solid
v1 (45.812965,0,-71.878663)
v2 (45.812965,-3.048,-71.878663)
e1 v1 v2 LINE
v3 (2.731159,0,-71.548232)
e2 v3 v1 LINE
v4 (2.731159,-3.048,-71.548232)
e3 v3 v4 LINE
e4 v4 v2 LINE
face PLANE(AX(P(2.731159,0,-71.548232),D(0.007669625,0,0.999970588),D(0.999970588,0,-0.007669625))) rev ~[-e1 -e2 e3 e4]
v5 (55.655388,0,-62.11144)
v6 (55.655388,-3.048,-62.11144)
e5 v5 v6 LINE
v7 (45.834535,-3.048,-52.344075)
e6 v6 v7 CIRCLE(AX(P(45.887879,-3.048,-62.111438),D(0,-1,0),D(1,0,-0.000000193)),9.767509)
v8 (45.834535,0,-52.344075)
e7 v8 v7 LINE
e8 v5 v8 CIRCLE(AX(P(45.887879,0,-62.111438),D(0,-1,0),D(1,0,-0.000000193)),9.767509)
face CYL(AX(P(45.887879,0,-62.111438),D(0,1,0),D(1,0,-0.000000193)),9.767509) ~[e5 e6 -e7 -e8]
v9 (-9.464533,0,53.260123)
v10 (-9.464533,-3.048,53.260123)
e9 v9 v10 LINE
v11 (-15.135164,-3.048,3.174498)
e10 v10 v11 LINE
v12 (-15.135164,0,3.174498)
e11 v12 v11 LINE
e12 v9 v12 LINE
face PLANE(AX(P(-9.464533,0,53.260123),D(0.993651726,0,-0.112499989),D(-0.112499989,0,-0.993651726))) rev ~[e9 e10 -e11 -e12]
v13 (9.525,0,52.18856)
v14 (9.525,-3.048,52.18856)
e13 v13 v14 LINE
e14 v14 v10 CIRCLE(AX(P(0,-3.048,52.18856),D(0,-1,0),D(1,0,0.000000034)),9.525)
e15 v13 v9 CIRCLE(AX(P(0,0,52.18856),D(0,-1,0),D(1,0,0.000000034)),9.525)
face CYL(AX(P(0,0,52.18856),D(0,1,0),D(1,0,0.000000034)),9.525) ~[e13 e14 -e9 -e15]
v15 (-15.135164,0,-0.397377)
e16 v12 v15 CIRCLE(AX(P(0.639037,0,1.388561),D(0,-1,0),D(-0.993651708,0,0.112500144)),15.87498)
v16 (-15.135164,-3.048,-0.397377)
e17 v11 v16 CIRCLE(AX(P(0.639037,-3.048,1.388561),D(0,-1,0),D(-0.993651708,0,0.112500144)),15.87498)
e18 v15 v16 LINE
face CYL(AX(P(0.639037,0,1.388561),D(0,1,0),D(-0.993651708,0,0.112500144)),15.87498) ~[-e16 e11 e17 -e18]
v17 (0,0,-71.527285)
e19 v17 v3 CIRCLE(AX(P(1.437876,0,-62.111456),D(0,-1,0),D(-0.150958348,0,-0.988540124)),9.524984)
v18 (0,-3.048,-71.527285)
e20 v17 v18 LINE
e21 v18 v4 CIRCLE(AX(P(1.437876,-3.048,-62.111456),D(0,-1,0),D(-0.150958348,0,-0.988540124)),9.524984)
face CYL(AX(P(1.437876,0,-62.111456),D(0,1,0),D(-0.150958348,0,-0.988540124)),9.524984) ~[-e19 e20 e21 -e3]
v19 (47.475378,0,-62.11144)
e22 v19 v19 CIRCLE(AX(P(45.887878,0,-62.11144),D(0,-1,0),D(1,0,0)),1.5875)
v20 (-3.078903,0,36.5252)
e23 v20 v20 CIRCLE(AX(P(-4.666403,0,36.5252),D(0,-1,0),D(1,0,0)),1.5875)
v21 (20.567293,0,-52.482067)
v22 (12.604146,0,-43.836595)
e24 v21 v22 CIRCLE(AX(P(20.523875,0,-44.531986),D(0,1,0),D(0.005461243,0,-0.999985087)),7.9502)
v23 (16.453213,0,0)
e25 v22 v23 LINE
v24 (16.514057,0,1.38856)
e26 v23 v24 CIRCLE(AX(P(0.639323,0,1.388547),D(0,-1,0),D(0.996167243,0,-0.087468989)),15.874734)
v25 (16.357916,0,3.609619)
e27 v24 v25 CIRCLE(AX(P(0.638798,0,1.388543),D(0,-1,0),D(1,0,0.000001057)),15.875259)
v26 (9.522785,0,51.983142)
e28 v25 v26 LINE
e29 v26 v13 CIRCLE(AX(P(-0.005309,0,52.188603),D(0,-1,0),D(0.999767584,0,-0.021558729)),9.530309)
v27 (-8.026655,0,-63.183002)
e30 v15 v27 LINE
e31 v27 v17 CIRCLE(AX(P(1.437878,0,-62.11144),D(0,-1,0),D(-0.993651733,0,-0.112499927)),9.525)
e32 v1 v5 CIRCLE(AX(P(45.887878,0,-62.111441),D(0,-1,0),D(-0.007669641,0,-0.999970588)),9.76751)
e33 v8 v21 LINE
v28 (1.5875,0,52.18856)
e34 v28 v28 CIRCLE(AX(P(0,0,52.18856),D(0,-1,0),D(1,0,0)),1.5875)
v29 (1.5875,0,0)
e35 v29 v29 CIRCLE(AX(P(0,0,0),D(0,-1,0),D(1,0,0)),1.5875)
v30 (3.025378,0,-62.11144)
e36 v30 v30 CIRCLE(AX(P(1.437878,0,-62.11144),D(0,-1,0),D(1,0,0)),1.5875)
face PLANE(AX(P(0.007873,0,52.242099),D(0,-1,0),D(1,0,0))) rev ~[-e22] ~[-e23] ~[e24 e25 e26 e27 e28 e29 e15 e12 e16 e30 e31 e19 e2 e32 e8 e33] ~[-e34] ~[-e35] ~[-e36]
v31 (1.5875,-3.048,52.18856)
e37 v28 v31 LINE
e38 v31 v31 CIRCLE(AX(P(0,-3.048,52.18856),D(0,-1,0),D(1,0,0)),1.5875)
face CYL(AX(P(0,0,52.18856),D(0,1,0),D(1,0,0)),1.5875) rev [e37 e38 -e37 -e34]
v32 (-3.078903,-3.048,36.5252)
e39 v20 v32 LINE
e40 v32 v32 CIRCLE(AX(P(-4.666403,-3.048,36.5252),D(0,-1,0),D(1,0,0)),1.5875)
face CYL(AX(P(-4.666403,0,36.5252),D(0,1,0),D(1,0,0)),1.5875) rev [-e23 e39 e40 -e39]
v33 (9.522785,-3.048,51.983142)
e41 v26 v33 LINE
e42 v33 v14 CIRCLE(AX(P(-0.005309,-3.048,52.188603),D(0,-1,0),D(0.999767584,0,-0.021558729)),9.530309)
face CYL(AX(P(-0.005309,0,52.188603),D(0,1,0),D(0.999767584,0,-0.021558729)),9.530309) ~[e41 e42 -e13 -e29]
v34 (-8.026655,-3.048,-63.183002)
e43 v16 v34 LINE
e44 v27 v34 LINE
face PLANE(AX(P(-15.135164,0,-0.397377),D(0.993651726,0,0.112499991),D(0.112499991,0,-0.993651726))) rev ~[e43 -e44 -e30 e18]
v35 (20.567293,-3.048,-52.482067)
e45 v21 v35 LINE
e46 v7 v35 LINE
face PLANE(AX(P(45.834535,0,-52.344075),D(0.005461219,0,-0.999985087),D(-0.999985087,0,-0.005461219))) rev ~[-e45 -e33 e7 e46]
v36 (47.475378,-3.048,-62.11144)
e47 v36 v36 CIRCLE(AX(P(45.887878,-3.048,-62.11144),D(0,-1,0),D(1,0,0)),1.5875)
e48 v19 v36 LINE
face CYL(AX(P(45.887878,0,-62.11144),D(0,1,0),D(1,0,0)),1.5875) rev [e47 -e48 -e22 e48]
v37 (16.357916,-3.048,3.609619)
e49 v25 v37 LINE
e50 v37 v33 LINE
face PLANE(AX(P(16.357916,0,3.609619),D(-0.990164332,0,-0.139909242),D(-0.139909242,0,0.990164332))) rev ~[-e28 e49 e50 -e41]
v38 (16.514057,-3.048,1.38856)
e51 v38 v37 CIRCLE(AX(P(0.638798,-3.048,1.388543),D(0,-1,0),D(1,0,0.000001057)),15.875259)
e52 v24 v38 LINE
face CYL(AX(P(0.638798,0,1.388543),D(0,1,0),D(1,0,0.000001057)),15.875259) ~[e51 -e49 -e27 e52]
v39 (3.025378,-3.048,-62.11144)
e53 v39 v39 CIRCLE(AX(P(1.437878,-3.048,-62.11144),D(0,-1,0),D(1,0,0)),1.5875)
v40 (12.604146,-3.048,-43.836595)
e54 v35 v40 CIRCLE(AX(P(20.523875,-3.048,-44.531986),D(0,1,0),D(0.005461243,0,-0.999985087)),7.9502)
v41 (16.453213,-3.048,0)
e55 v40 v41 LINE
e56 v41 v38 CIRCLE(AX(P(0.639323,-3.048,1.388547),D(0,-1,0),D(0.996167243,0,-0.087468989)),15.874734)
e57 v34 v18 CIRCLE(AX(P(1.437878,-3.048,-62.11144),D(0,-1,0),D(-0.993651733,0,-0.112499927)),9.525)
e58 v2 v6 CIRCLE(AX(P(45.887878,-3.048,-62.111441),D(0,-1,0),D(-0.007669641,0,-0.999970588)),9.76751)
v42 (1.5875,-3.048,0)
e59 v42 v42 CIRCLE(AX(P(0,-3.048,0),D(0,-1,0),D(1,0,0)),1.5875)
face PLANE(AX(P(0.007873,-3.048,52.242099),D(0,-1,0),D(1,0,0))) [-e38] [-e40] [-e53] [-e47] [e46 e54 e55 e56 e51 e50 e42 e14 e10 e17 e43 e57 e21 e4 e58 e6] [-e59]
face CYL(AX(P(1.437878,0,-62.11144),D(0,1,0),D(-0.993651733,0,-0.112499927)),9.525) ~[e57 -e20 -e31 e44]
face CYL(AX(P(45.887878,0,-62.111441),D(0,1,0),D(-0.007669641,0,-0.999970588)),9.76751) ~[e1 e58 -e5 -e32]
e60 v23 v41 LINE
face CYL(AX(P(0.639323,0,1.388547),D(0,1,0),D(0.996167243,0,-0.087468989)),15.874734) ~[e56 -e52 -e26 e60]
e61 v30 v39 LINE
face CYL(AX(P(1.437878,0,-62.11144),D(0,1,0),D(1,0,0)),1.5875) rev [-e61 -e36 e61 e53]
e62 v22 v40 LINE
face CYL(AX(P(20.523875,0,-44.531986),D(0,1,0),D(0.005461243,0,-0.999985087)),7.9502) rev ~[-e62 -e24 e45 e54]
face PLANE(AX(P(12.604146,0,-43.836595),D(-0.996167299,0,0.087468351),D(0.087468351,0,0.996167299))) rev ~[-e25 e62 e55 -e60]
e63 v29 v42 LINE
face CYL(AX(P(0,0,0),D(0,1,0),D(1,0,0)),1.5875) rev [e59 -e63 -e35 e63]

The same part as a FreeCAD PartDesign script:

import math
import FreeCAD as App
import Part
import Sketcher
Q = App.Units.Quantity

doc = App.newDocument("Part")
body = doc.addObject("PartDesign::Body", "Body")

# Sketch on XZ plane
sketch1 = doc.addObject("Sketcher::SketchObject", "Sketch")
body.addObject(sketch1)
sketch1.AttachmentSupport = (doc.XZ_Plane, [""])
sketch1.MapMode = "FlatFace"
sketch1.addGeometry([
    Part.ArcOfCircle(Part.Circle(App.Vector(-0.005309, 52.188603, 0), App.Vector(0, 0, 1), 9.530309), math.radians(-1.23532), math.radians(-0.000261)),  # 0
    Part.ArcOfCircle(Part.Circle(App.Vector(0, 52.18856, 0), App.Vector(0, 0, 1), 9.525), math.radians(0.000002), math.radians(173.540545)),  # 1
    Part.LineSegment(App.Vector(-9.464533, 53.260123, 0), App.Vector(-15.135164, 3.174498, 0)),  # 2
    Part.ArcOfCircle(Part.Circle(App.Vector(0.639037, 1.388561, 0), App.Vector(0, 0, 1), 15.87498), math.radians(173.540542), math.radians(186.459458)),  # 3
    Part.LineSegment(App.Vector(-15.135164, -0.397377, 0), App.Vector(-8.026655, -63.183002, 0)),  # 4
    Part.ArcOfCircle(Part.Circle(App.Vector(1.437878, -62.11144, 0), App.Vector(0, 0, 1), 9.525), math.radians(-173.540554), math.radians(-98.682465)),  # 5
    Part.ArcOfCircle(Part.Circle(App.Vector(1.437876, -62.111456, 0), App.Vector(0, 0, 1), 9.524984), math.radians(-98.682468), math.radians(-82.19639)),  # 6
    Part.LineSegment(App.Vector(2.731159, -71.548232, 0), App.Vector(45.812965, -71.878663, 0)),  # 7
    Part.ArcOfCircle(Part.Circle(App.Vector(45.887878, -62.111441, 0), App.Vector(0, 0, 1), 9.76751), math.radians(-90.439442), math.radians(0.000003)),  # 8
    Part.ArcOfCircle(Part.Circle(App.Vector(45.887879, -62.111438, 0), App.Vector(0, 0, 1), 9.767509), math.radians(-0.000011), math.radians(90.312916)),  # 9
    Part.LineSegment(App.Vector(45.834535, -52.344075, 0), App.Vector(20.567293, -52.482067, 0)),  # 10
    Part.ArcOfCircle(Part.Circle(App.Vector(20.523875, -44.531986, 0), App.Vector(0, 0, 1), 7.9502), math.radians(174.982021), math.radians(270.312908)),  # 11
    Part.LineSegment(App.Vector(12.604146, -43.836595, 0), App.Vector(16.453213, 0, 0)),  # 12
    Part.ArcOfCircle(Part.Circle(App.Vector(0.639323, 1.388547, 0), App.Vector(0, 0, 1), 15.874734), math.radians(-5.018017), math.radians(0.000047)),  # 13
    Part.ArcOfCircle(Part.Circle(App.Vector(0.638798, 1.388543, 0), App.Vector(0, 0, 1), 15.875259), math.radians(0.000061), math.radians(8.042523)),  # 14
    Part.LineSegment(App.Vector(16.357916, 3.609619, 0), App.Vector(9.522785, 51.983142, 0)),  # 15
    Part.Circle(App.Vector(1.437878, -62.11144, 0), App.Vector(0, 0, 1), 1.5875),  # 16
    Part.Circle(App.Vector(45.887878, -62.11144, 0), App.Vector(0, 0, 1), 1.5875),  # 17
    Part.Circle(App.Vector(0, 0, 0), App.Vector(0, 0, 1), 1.5875),  # 18
    Part.Circle(App.Vector(-4.666403, 36.5252, 0), App.Vector(0, 0, 1), 1.5875),  # 19
    Part.Circle(App.Vector(0, 52.18856, 0), App.Vector(0, 0, 1), 1.5875),  # 20
], False)
sketch1.addConstraint([
    Sketcher.Constraint("Coincident", 0, 2, 1, 1),
    Sketcher.Constraint("Coincident", 1, 2, 2, 1),
    Sketcher.Constraint("Coincident", 2, 2, 3, 1),
    Sketcher.Constraint("Coincident", 3, 2, 4, 1),
    Sketcher.Constraint("Coincident", 4, 2, 5, 1),
    Sketcher.Constraint("Coincident", 5, 2, 6, 1),
    Sketcher.Constraint("Coincident", 6, 2, 7, 1),
    Sketcher.Constraint("Coincident", 7, 2, 8, 1),
    Sketcher.Constraint("Coincident", 8, 2, 9, 1),
    Sketcher.Constraint("Coincident", 9, 2, 10, 1),
    Sketcher.Constraint("Coincident", 10, 2, 11, 2),
    Sketcher.Constraint("Coincident", 11, 1, 12, 1),
    Sketcher.Constraint("Coincident", 12, 2, 13, 1),
    Sketcher.Constraint("Coincident", 13, 2, 14, 1),
    Sketcher.Constraint("Coincident", 14, 2, 15, 1),
    Sketcher.Constraint("Coincident", 15, 2, 0, 1),
    Sketcher.Constraint("Coincident", 18, 3, -1, 1),
    Sketcher.Constraint("Coincident", 9, 3, 8, 3),
    Sketcher.Constraint("Coincident", 16, 3, 5, 3),
    Sketcher.Constraint("Coincident", 17, 3, 8, 3),
    Sketcher.Constraint("Coincident", 20, 3, 1, 3),
    Sketcher.Constraint("PointOnObject", 1, 3, -2),
    Sketcher.Constraint("PointOnObject", 5, 2, -2),
    Sketcher.Constraint("PointOnObject", 12, 2, -1),
    Sketcher.Constraint("Diameter", 16, Q("0.125 in")),
    Sketcher.Constraint("Diameter", 17, Q("0.125 in")),
    Sketcher.Constraint("Diameter", 18, Q("0.125 in")),
    Sketcher.Constraint("Diameter", 19, Q("0.125 in")),
    Sketcher.Constraint("Diameter", 20, Q("0.125 in")),
    Sketcher.Constraint("Radius", 1, Q("0.375 in")),
    Sketcher.Constraint("Radius", 5, Q("0.375 in")),
    Sketcher.Constraint("Radius", 11, Q("0.313 in")),
    Sketcher.Constraint("DistanceY", 3, 3, 1, 3, Q("2 in")),
    Sketcher.Constraint("DistanceY", 5, 3, 3, 3, Q("2.5 in")),
    Sketcher.Constraint("DistanceY", 8, 3, 3, 3, Q("2.5 in")),
    Sketcher.Constraint("DistanceX", 5, 3, 8, 3, Q("1.75 in")),
    Sketcher.Constraint("DistanceX", 6, 3, 8, 3, Q("1.7500001 in")),
    Sketcher.Constraint("DistanceY", -1, 1, 19, 3, Q("1.438 in")),
    Sketcher.Constraint("Radius", 0, Q("9.530309 mm")),
    Sketcher.Constraint("Radius", 3, Q("15.87498 mm")),
    Sketcher.Constraint("Radius", 8, Q("9.76751 mm")),
    Sketcher.Constraint("Radius", 14, Q("15.875259 mm")),
    Sketcher.Constraint("DistanceY", 3, 2, 2, 2, Q("0.140625 in")),
    Sketcher.Constraint("Radius", 6, Q("9.524984 mm")),
    Sketcher.Constraint("Radius", 13, Q("15.874734 mm")),
    Sketcher.Constraint("DistanceX", 9, 2, 9, 3, Q("0.0021002 in")),
    Sketcher.Constraint("DistanceX", 6, 3, 11, 3, Q("19.085999 mm")),
    Sketcher.Constraint("DistanceX", 1, 3, 14, 3, Q("0.638798 mm")),
    Sketcher.Constraint("DistanceX", 19, 3, 14, 3, Q("5.305201 mm")),
    Sketcher.Constraint("DistanceX", 2, 2, 3, 3, Q("15.774201 mm")),
    Sketcher.Constraint("DistanceY", 2, 2, 19, 3, Q("33.350702 mm")),
    Sketcher.Constraint("DistanceY", 5, 2, 11, 3, Q("26.995299 mm")),
    Sketcher.Constraint("Distance", 4, Q("63.186752 mm")),
    Sketcher.Constraint("Distance", 10, Q("25.267619 mm")),
    Sketcher.Constraint("DistanceX", -1, 1, 8, 3, Q("45.887878 mm")),
    Sketcher.Constraint("DistanceY", -1, 1, 0, 2, Q("52.18856 mm")),
    Sketcher.Constraint("DistanceX", -1, 1, 6, 2, Q("2.731159 mm")),
    Sketcher.Constraint("DistanceY", 8, 2, -1, 1, Q("62.11144 mm")),
    Sketcher.Constraint("DistanceY", -1, 1, 13, 2, Q("1.38856 mm")),
    Sketcher.Constraint("DistanceY", -1, 1, 14, 2, Q("3.609619 mm")),
    Sketcher.Constraint("DistanceX", 3, 3, 5, 3, Q("0.798841 mm")),
    Sketcher.Constraint("DistanceY", 6, 3, 0, 3, Q("114.30006 mm")),
    Sketcher.Constraint("DistanceY", 11, 3, 14, 3, Q("45.920529 mm")),
    Sketcher.Constraint("DistanceY", 0, 3, 1, 2, Q("1.07152 mm")),
    Sketcher.Constraint("DistanceY", 13, 3, 2, 2, Q("1.785951 mm")),
    Sketcher.Constraint("DistanceX", 11, 3, 7, 2, Q("25.28909 mm")),
    Sketcher.Constraint("DistanceX", 11, 1, 11, 3, Q("7.919729 mm")),
    Sketcher.Constraint("DistanceY", 15, 2, 0, 2, Q("0.205418 mm")),
])
pad1 = doc.addObject("PartDesign::Pad", "Pad")
body.addObject(pad1)
pad1.Profile = sketch1
pad1.Length = Q("0.12 in")

doc.recompute()
